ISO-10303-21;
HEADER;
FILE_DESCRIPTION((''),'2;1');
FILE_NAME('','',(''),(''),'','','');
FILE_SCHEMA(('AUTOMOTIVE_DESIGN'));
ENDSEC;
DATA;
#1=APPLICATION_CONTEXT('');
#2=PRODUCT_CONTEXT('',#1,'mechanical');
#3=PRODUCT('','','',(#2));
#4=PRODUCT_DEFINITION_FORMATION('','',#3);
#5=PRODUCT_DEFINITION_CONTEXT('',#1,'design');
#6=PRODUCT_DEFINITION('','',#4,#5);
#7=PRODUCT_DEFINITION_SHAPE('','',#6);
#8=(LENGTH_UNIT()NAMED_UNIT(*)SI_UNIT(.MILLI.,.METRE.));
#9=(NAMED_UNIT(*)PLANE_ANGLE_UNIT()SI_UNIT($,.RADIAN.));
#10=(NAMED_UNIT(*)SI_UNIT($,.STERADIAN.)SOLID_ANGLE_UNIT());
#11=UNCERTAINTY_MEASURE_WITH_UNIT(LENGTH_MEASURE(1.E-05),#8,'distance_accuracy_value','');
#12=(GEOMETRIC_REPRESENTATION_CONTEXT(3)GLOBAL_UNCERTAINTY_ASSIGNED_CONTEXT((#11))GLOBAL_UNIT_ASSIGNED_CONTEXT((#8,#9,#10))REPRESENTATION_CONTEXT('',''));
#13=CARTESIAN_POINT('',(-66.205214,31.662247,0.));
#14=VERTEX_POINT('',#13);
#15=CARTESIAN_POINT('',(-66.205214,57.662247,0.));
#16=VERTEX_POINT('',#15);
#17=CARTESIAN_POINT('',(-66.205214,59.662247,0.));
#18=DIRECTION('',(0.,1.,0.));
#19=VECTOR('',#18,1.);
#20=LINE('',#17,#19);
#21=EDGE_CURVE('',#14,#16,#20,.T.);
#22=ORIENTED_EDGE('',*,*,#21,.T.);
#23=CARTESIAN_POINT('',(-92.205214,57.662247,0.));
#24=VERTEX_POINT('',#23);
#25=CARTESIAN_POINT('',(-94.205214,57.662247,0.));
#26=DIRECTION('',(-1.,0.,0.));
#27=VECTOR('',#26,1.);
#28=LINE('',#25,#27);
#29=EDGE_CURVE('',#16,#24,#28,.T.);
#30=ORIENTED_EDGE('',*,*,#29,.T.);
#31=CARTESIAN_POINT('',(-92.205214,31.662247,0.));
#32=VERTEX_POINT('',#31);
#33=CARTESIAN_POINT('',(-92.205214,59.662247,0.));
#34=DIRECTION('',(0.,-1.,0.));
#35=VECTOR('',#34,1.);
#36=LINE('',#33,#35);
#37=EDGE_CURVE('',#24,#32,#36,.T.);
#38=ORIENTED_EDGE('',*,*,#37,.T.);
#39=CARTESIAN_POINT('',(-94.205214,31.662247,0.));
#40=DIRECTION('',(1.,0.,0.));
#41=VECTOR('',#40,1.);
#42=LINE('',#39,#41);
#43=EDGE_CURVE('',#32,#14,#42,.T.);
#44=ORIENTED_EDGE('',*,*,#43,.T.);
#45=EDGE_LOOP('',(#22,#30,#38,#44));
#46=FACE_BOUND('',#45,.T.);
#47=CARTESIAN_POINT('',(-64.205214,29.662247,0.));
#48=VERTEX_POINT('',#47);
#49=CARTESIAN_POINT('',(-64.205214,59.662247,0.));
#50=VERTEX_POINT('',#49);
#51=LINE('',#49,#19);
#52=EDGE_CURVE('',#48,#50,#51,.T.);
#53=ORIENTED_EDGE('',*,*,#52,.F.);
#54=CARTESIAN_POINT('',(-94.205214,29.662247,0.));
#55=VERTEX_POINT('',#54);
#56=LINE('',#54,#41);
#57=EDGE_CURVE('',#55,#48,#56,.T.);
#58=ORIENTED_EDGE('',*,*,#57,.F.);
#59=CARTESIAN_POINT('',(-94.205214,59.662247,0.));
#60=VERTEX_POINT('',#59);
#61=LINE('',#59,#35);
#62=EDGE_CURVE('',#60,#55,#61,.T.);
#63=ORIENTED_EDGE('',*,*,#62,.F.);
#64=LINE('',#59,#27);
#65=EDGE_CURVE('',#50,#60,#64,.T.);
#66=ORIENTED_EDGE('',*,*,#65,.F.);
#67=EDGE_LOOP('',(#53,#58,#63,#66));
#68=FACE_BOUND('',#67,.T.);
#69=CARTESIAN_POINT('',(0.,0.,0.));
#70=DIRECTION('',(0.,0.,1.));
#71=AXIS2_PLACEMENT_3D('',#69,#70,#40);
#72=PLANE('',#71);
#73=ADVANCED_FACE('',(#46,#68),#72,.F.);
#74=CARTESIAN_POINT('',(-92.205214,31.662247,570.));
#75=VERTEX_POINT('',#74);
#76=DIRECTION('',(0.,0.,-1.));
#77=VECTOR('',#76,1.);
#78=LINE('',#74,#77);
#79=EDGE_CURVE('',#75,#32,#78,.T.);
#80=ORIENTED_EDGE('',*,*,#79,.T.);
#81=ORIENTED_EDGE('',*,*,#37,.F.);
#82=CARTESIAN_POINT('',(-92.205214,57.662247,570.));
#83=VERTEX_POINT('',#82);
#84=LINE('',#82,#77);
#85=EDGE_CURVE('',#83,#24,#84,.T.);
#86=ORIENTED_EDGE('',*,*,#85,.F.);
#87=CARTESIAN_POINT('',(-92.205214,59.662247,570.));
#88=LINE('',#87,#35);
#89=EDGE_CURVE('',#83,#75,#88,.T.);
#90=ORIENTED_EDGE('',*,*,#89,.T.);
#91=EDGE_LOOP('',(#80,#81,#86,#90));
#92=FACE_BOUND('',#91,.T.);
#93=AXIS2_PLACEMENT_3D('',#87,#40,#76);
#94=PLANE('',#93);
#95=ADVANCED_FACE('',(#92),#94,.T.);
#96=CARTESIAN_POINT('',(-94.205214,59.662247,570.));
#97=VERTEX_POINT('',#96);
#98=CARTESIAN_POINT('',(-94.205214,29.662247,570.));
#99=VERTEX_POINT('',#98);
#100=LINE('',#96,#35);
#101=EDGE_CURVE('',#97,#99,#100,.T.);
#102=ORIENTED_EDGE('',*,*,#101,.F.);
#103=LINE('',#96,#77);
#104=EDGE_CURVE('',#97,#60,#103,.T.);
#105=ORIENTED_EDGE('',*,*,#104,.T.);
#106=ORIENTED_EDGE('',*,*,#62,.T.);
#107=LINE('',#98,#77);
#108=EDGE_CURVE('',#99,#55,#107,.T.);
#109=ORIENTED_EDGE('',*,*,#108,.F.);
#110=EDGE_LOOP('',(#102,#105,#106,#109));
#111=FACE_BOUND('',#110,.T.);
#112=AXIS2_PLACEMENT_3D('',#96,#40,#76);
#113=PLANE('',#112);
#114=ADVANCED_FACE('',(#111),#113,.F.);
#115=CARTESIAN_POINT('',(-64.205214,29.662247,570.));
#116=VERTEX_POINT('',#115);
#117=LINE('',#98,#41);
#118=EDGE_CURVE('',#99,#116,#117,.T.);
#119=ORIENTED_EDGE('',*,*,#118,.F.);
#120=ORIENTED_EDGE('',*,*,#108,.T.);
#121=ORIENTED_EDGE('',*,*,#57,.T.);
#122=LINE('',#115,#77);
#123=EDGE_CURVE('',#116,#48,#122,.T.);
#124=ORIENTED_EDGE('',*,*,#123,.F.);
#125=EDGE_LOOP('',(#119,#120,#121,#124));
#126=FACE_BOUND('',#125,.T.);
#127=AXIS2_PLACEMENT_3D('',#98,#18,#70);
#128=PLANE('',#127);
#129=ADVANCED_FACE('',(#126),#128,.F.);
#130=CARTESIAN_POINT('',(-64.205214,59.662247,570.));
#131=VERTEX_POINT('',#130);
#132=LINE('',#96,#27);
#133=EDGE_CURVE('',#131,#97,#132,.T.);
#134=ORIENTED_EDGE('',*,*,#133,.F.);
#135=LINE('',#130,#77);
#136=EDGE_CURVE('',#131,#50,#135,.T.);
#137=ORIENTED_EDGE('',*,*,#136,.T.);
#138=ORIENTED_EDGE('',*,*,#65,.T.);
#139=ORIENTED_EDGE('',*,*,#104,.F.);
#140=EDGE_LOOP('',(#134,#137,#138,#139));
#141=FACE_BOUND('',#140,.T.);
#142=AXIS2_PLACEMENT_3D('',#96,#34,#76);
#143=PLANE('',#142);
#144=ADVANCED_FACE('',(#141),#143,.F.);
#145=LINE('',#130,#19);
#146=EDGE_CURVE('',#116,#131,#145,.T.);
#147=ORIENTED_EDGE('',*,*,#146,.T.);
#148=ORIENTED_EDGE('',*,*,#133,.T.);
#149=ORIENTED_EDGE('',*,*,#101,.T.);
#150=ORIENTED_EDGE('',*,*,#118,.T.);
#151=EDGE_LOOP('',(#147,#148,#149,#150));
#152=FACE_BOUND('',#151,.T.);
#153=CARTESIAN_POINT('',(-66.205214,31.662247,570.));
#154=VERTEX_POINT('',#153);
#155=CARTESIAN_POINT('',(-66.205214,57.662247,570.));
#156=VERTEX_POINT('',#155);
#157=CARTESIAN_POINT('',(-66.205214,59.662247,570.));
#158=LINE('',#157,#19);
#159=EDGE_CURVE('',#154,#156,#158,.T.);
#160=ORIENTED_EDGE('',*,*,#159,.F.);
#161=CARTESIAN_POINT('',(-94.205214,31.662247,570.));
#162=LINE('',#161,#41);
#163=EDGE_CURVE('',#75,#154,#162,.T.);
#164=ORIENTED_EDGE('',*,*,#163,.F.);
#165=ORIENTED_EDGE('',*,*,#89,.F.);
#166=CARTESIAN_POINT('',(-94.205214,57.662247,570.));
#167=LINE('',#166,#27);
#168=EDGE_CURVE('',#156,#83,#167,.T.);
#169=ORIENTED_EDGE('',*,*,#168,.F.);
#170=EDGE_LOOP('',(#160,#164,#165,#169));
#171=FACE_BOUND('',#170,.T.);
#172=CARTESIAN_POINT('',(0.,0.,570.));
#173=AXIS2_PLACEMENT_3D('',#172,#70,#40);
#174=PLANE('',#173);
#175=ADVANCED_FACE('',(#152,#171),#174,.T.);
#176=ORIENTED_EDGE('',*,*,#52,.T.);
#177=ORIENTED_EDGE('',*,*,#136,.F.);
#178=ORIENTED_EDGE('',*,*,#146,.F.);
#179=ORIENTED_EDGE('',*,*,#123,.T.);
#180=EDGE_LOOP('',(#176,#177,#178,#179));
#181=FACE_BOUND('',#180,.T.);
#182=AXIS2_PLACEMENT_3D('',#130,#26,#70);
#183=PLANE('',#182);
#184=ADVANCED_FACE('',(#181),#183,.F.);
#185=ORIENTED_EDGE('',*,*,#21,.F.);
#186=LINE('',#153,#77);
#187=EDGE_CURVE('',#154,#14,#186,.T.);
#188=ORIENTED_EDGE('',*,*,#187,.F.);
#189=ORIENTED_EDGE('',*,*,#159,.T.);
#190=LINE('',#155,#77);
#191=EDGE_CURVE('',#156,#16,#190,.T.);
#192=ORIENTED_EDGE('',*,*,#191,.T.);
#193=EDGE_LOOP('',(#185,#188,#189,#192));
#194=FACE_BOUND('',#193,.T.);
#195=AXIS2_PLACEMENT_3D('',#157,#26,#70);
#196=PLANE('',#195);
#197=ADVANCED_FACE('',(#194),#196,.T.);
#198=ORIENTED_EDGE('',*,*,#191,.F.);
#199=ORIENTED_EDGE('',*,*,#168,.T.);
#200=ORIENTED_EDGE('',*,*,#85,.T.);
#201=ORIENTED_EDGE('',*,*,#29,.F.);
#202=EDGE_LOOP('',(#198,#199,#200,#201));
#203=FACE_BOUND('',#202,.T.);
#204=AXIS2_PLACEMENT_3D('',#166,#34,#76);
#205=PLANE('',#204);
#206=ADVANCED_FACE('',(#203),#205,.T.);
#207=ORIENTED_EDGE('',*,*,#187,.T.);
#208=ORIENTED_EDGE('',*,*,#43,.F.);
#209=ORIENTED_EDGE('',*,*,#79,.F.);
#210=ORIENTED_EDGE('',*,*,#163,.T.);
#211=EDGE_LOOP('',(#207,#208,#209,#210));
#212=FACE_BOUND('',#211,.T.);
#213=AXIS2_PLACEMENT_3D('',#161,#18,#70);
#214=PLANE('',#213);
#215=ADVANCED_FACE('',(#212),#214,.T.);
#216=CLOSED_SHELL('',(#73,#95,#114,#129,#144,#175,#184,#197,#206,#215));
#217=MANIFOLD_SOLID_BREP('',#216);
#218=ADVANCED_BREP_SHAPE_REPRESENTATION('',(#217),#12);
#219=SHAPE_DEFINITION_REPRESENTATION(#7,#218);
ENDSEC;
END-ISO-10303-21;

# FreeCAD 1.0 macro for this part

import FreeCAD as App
import Part
import Sketcher

V = App.Vector
Q = App.Units.Quantity


def faces_at(feature, points):
    """Names of the faces that lie closest to the given points."""
    faces = feature.Shape.Faces
    near = lambda p: min(range(len(faces)), key=lambda i: faces[i].distToShape(Part.Vertex(*p))[0])
    return sorted({f"Face{near(p) + 1}" for p in points})


def add_polygon(sketch, points):
    """Adds a closed chain of lines whose ends are joined by coincident constraints."""
    first, n = sketch.GeometryCount, len(points)
    for a, b in zip(points, points[1:] + points[:1]):
        sketch.addGeometry(Part.LineSegment(App.Vector(*a, 0), App.Vector(*b, 0)), False)
    for i in range(n):
        sketch.addConstraint(Sketcher.Constraint("Coincident", first + i, 2, first + (i + 1) % n, 1))

doc = App.newDocument("Part")
body = doc.addObject("PartDesign::Body", "Body")

# Sketch on XY plane
sketch1 = body.newObject("Sketcher::SketchObject", "Sketch")
sketch1.AttachmentSupport = (doc.getObject("XY_Plane"), [""])
sketch1.MapMode = "FlatFace"
add_polygon(sketch1, [(-94, 60), (-94, 30), (-64, 30), (-64, 60)])  # lines 0-3
sketch1.addConstraint(Sketcher.Constraint("Vertical", 0))
sketch1.addConstraint(Sketcher.Constraint("Horizontal", 1))
sketch1.addConstraint(Sketcher.Constraint("Vertical", 2))
sketch1.addConstraint(Sketcher.Constraint("Horizontal", 3))
sketch1.addConstraint(Sketcher.Constraint("Equal", 3, 0))
sketch1.addConstraint(Sketcher.Constraint("DistanceX", 1, 1, 1, 2, Q("30 mm")))
sketch1.addConstraint(Sketcher.Constraint("DistanceX", 0, 2, -1, 1, Q("94.205214 mm")))
sketch1.addConstraint(Sketcher.Constraint("DistanceY", -1, 1, 0, 2, Q("29.662247 mm")))
pad1 = body.newObject("PartDesign::Pad", "Pad")
pad1.Profile = sketch1
pad1.Length = 570
doc.recompute()

thickness = body.newObject("PartDesign::Thickness", "Thickness")
thickness.Base = (pad1, faces_at(pad1, [(-79.205, 44.662, 570), (-79.205, 44.662, 0)]))
thickness.Value = 2
thickness.Reversed = True
thickness.Join = "Intersection"

doc.recompute()
